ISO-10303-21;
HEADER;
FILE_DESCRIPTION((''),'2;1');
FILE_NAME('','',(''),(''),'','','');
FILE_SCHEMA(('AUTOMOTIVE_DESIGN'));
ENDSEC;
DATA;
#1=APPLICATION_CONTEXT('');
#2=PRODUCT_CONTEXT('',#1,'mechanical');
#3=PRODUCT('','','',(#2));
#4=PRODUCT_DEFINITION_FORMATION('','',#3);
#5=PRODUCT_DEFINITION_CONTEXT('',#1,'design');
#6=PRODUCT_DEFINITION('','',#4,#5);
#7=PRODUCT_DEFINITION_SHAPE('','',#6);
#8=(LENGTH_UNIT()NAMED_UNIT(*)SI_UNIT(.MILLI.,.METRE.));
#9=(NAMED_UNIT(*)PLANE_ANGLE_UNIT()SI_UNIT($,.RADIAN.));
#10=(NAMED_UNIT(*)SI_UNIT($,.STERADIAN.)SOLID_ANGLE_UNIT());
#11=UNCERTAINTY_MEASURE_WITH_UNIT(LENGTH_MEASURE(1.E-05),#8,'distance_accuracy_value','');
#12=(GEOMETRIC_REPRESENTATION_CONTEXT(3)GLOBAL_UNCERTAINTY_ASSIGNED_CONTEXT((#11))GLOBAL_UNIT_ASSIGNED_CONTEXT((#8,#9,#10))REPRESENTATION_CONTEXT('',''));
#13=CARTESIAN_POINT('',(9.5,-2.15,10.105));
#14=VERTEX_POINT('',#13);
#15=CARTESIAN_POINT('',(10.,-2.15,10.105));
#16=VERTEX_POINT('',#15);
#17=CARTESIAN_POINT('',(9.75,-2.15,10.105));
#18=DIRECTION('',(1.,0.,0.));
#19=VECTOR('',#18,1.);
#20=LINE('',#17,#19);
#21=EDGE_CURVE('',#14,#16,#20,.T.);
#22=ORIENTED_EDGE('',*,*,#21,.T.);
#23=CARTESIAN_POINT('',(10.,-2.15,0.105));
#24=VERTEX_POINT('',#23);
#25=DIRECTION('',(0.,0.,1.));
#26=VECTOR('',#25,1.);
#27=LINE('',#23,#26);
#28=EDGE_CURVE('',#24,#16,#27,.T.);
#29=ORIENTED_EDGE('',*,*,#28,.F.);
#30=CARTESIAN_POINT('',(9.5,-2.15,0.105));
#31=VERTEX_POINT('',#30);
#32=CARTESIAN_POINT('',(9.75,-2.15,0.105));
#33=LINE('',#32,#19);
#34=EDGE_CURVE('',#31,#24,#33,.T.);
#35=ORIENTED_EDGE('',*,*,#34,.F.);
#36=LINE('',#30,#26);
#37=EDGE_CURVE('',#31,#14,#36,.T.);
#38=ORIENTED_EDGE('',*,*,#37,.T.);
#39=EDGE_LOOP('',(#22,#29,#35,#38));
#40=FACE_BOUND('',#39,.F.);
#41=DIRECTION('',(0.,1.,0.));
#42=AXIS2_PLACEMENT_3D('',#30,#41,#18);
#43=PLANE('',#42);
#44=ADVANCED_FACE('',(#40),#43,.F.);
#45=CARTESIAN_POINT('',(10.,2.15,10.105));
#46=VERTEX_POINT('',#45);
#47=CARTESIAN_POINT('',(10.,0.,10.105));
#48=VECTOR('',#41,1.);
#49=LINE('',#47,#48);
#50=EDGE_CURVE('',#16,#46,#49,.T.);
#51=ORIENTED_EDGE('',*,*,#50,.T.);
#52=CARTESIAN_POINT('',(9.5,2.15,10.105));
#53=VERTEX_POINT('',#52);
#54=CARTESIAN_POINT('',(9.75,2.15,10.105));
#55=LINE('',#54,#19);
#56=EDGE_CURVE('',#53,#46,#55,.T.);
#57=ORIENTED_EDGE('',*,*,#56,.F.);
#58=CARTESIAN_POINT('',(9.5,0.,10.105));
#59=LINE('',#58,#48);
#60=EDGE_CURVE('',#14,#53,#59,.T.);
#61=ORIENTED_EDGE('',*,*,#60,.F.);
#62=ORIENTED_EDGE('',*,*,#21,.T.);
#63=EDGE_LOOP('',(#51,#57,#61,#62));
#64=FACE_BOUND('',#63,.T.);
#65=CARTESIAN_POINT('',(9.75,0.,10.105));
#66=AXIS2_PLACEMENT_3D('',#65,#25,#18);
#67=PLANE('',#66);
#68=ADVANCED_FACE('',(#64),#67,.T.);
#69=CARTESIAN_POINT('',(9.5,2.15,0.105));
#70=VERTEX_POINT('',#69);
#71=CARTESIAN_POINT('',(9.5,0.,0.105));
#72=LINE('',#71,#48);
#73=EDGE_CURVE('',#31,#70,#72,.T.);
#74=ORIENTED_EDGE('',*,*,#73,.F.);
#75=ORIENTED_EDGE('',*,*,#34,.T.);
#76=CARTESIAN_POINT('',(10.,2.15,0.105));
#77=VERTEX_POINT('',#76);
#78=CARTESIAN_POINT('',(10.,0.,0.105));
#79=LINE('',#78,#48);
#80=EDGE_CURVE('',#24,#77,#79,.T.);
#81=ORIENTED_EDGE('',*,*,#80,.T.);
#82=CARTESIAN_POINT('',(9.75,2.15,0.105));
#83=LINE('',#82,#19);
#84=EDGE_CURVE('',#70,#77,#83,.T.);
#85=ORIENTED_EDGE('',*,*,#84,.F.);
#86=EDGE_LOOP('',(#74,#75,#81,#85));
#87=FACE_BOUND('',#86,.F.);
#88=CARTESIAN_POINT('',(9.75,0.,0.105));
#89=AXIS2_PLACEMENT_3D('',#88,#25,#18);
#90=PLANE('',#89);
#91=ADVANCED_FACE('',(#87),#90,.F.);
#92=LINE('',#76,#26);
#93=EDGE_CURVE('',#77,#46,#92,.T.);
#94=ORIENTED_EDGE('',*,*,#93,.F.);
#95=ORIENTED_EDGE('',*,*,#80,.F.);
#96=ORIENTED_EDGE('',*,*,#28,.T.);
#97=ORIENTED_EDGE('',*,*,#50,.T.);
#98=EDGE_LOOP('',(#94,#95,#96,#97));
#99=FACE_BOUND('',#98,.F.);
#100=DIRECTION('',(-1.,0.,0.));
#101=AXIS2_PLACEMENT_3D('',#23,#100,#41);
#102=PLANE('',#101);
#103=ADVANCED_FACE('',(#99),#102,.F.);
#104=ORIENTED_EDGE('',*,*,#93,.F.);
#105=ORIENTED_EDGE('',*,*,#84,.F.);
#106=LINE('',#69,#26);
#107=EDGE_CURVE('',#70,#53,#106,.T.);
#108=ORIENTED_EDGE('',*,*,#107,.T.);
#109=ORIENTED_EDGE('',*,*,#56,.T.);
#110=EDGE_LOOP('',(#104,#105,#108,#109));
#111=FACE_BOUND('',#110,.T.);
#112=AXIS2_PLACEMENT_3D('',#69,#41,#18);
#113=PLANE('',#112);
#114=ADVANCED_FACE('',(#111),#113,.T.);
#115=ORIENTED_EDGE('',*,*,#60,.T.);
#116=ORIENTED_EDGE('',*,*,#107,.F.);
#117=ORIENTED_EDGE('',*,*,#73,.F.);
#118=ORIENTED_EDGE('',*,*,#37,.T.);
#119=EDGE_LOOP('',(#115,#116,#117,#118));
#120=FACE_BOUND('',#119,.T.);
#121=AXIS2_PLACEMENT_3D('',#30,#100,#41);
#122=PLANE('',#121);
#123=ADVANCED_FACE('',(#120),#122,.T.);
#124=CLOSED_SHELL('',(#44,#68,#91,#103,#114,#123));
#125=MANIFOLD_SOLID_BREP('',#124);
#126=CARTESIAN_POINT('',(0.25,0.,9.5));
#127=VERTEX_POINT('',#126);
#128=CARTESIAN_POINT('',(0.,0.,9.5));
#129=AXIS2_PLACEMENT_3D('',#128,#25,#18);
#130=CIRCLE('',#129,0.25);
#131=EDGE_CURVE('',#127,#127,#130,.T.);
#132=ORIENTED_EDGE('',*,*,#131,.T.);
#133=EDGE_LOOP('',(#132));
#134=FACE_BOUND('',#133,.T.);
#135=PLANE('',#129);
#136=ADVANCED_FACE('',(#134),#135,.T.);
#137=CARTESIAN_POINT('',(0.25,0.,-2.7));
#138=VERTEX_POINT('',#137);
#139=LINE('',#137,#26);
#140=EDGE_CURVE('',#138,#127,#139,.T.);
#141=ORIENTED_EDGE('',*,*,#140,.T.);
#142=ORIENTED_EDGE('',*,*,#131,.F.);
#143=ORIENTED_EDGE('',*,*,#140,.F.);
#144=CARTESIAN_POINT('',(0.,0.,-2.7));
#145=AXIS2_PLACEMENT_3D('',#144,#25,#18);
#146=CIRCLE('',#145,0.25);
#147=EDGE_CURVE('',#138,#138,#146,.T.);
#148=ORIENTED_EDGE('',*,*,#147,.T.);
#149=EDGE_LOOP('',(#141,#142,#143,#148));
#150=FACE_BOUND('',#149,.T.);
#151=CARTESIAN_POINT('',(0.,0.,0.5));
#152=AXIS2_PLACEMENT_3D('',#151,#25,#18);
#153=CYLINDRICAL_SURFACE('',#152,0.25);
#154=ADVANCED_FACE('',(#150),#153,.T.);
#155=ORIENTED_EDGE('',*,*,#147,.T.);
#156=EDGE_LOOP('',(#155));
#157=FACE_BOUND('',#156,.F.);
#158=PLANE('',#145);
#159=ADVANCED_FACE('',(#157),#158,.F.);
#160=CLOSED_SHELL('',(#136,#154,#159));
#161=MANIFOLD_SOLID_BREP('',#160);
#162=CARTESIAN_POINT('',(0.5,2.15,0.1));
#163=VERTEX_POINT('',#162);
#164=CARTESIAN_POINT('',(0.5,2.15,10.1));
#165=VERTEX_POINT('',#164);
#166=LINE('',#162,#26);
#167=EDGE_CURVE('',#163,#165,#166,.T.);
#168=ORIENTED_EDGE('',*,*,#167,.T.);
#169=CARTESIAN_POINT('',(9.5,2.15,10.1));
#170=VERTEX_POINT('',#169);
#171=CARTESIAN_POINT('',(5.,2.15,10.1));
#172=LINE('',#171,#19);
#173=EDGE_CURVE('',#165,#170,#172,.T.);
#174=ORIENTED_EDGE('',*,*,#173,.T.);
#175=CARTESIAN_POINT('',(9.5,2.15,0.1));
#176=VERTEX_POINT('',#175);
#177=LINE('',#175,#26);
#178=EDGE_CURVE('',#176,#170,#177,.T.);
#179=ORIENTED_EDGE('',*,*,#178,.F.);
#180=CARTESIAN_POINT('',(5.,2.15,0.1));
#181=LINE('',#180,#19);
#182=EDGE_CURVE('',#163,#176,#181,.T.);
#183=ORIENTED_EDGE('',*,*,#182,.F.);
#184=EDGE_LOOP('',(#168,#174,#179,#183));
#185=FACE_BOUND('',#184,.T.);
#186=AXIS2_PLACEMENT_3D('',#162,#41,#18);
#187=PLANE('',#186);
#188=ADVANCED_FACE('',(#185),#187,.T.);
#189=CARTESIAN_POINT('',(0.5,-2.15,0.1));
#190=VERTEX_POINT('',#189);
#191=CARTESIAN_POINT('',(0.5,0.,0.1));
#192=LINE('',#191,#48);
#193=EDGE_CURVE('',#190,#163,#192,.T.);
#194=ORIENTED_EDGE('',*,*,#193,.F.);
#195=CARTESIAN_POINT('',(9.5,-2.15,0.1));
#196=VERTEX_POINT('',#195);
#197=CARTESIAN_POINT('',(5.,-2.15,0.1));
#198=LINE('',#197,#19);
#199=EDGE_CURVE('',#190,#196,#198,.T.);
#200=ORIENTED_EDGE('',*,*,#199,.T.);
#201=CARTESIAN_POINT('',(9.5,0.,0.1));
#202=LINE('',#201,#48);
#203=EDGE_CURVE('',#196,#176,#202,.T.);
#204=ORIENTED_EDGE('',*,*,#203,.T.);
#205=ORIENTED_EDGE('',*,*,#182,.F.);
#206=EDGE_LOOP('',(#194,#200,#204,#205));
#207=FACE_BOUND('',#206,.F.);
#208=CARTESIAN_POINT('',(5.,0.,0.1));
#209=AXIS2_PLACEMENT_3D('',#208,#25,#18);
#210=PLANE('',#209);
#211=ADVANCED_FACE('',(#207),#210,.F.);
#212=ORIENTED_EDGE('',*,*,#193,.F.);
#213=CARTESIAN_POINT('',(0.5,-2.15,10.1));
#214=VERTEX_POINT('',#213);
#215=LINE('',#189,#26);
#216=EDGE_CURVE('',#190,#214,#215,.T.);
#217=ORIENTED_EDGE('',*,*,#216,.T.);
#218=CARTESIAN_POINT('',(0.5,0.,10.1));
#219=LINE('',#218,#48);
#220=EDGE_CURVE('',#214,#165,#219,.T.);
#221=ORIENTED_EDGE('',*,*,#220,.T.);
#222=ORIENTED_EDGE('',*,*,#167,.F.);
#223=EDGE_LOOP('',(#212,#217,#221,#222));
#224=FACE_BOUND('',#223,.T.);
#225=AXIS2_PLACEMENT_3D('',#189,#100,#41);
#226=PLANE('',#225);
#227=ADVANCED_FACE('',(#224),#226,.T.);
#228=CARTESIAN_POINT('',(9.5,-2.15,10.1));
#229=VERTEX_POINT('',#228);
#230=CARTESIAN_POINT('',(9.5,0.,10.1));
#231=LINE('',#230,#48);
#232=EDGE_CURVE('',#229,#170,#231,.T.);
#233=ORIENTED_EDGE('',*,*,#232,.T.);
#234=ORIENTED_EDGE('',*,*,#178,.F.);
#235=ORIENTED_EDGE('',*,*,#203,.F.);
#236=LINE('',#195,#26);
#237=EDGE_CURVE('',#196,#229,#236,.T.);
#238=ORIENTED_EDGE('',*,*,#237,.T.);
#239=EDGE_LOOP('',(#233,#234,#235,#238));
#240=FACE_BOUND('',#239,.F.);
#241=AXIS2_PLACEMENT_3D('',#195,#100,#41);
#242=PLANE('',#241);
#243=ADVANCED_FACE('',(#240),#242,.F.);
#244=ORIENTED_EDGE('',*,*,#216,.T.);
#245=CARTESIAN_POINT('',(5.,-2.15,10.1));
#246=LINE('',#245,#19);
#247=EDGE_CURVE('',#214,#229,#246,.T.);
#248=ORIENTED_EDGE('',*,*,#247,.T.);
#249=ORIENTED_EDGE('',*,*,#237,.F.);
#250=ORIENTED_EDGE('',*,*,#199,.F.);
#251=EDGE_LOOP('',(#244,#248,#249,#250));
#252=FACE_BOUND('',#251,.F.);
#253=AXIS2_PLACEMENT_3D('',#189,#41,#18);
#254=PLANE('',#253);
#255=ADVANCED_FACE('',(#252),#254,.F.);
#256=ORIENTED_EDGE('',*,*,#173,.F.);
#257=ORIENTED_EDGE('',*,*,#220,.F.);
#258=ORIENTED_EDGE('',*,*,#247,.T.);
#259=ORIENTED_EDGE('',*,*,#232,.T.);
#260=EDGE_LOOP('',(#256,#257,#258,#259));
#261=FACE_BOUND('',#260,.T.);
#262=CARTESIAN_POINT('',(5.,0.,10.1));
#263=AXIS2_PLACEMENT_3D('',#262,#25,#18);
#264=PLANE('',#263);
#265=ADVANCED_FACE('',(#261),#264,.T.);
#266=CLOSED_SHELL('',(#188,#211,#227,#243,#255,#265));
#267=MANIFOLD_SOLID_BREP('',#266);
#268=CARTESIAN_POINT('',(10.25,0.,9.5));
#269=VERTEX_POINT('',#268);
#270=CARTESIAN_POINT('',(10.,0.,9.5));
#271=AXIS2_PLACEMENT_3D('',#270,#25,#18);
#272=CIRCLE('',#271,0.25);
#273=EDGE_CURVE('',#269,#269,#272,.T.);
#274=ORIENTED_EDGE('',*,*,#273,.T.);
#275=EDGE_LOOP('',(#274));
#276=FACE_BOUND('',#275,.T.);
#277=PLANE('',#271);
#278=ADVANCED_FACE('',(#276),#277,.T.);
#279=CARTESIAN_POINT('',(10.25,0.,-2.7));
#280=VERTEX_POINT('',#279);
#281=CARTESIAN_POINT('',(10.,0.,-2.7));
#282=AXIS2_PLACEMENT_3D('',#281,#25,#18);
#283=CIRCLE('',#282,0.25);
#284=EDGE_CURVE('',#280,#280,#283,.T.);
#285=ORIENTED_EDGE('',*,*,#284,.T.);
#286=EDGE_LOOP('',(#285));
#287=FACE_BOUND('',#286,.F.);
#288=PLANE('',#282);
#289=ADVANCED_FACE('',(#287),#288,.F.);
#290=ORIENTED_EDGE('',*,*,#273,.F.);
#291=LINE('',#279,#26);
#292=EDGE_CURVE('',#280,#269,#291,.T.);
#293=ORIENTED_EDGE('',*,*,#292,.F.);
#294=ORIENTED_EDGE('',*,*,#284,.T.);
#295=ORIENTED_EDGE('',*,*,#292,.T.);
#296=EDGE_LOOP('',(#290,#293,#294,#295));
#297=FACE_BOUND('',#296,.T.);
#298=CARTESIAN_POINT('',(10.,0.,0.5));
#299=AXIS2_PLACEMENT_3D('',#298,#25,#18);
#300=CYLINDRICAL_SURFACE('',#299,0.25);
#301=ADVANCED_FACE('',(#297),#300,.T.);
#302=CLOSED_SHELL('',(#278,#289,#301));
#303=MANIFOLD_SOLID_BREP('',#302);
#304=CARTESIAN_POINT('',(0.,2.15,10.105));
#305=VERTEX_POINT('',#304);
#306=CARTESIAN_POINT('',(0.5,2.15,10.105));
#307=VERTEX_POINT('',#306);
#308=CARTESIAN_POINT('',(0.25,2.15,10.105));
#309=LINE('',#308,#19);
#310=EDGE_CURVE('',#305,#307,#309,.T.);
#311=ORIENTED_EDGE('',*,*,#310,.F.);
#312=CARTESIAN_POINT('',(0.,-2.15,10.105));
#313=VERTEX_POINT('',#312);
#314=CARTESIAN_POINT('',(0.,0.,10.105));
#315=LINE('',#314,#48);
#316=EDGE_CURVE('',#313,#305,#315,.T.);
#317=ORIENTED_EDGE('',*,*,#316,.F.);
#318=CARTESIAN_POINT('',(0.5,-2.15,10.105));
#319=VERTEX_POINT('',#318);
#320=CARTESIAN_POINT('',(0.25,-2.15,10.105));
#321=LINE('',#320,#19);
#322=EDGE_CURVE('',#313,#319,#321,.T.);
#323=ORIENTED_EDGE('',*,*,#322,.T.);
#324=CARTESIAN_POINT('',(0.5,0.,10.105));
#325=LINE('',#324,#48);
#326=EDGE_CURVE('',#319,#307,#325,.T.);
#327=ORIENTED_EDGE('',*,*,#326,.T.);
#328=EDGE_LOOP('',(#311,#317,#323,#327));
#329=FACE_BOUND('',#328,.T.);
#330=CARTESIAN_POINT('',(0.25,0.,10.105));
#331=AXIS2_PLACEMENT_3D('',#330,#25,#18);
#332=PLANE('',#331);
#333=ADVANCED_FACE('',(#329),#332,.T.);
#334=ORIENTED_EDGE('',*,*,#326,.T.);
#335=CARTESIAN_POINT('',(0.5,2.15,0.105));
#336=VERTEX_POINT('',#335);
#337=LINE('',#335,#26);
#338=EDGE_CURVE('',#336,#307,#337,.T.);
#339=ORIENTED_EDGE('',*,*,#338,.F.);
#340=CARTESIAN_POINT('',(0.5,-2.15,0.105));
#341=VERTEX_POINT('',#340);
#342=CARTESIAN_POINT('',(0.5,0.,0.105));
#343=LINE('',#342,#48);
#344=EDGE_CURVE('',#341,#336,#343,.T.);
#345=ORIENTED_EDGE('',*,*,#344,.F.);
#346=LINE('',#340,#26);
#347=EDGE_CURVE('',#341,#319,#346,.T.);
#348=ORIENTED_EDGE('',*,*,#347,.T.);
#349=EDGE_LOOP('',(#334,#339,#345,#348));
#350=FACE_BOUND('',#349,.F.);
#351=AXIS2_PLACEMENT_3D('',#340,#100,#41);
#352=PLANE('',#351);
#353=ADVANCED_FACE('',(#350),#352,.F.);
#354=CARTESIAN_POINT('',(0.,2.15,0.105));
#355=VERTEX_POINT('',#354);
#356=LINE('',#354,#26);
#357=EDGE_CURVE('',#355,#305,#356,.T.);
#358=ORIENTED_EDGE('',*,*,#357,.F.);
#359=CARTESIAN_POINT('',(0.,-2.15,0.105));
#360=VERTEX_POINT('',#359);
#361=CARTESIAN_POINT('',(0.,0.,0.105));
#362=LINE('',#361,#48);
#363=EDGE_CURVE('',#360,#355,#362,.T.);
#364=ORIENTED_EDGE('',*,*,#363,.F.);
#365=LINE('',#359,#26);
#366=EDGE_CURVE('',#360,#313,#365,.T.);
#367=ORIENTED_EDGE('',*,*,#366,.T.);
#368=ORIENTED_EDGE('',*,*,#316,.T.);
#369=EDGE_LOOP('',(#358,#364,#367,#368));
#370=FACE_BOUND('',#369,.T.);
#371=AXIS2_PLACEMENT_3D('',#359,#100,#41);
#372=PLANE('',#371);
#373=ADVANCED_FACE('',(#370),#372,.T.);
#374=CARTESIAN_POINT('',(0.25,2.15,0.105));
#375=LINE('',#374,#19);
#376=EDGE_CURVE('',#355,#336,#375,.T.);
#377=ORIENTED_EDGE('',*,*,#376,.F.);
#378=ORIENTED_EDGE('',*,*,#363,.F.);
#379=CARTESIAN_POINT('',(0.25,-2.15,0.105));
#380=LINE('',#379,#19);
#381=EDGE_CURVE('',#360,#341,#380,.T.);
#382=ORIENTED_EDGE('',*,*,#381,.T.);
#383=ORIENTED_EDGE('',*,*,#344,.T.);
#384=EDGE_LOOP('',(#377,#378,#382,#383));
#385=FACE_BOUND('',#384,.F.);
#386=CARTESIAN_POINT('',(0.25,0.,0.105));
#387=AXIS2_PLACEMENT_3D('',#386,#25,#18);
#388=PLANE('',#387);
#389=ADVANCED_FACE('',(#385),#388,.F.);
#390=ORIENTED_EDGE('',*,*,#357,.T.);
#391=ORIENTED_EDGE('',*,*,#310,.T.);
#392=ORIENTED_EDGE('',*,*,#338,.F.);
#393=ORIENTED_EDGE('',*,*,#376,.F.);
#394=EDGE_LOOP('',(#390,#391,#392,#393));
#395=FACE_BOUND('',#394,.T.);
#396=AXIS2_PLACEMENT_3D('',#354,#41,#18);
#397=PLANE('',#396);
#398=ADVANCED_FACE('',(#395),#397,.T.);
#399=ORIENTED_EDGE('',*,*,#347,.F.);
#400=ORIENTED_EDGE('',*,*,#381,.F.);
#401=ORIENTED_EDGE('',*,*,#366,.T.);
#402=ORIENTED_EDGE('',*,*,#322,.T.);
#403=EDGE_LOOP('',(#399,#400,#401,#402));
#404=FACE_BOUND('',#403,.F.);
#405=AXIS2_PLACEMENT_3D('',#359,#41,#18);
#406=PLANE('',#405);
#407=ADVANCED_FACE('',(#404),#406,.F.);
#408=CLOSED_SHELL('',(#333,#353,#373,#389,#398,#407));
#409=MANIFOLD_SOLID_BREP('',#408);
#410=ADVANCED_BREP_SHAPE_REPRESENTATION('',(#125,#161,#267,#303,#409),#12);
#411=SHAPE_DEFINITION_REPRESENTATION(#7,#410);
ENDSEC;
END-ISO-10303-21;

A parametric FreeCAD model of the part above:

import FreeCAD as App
import Part
import Sketcher
from FreeCAD import Vector


def add_polygon(sketch, points):
    """Adds a closed chain of lines whose ends are joined by coincident constraints."""
    first, n = sketch.GeometryCount, len(points)
    for a, b in zip(points, points[1:] + points[:1]):
        sketch.addGeometry(Part.LineSegment(App.Vector(*a, 0), App.Vector(*b, 0)), False)
    for i in range(n):
        sketch.addConstraint(Sketcher.Constraint("Coincident", first + i, 2, first + (i + 1) % n, 1))

doc = App.newDocument("Part")
body = doc.addObject("PartDesign::Body", "Body")

sketch1 = body.newObject("Sketcher::SketchObject", "Sketch")
sketch1.AttachmentSupport = (doc.getObject("XY_Plane"), [""])
sketch1.MapMode = "FlatFace"
sketch1.AttachmentOffset = App.Placement(Vector(0, 0, 0.1), App.Rotation())
add_polygon(sketch1, [(0.5, 2.1), (0.5, -2.1), (9.5, -2.1), (9.5, 2.1)])
sketch1.addConstraint([
    Sketcher.Constraint("Vertical", 0),
    Sketcher.Constraint("Horizontal", 1),
    Sketcher.Constraint("Vertical", 2),
    Sketcher.Constraint("Horizontal", 3),
    Sketcher.Constraint("DistanceX", 1, 1, 1, 2, 9.0),
    Sketcher.Constraint("DistanceY", 0, 2, 0, 1, 4.3),
    Sketcher.Constraint("DistanceX", -1, 1, 0, 2, 0.5),
    Sketcher.Constraint("DistanceY", 0, 2, -1, 1, 2.15),
])
pad1 = body.newObject("PartDesign::Pad", "Pad")
pad1.Profile = sketch1
pad1.Length = 10
body2 = doc.addObject("PartDesign::Body", "Body001")
body2.AllowCompound = True

sketch2 = body2.newObject("Sketcher::SketchObject", "Sketch001")
sketch2.AttachmentSupport = (doc.getObject("XY_Plane001"), [""])
sketch2.MapMode = "FlatFace"
sketch2.AttachmentOffset = App.Placement(Vector(0, 0, 0.5), App.Rotation())
sketch2.addGeometry([
    Part.Circle(Vector(0, 0, 0), Vector(0, 0, 1), 0.25),
    Part.Circle(Vector(10, 0, 0), Vector(0, 0, 1), 0.25),
], False)
sketch2.addConstraint([
    Sketcher.Constraint("Coincident", 0, 3, -1, 1),
    Sketcher.Constraint("Equal", 0, 1),
    Sketcher.Constraint("PointOnObject", 1, 3, -1),
    Sketcher.Constraint("Diameter", 0, 0.5),
    Sketcher.Constraint("DistanceX", -1, 1, 1, 3, 10.0),
])
pad2 = body2.newObject("PartDesign::Pad", "Pad001")
pad2.Profile = sketch2
pad2.Type = "TwoLengths"
pad2.Length = 9
pad2.Length2 = 3.2
body3 = doc.addObject("PartDesign::Body", "Body002")
body3.AllowCompound = True

sketch3 = body3.newObject("Sketcher::SketchObject", "Sketch002")
sketch3.AttachmentSupport = (doc.getObject("XY_Plane002"), [""])
sketch3.MapMode = "FlatFace"
sketch3.AttachmentOffset = App.Placement(Vector(0, 0, 0.105), App.Rotation())
add_polygon(sketch3, [(0, 2.1), (0, -2.1), (0.5, -2.1), (0.5, 2.1)])
add_polygon(sketch3, [(9.5, 2.1), (9.5, -2.1), (10, -2.1), (10, 2.1)])
sketch3.addConstraint([
    Sketcher.Constraint("Vertical", 0),
    Sketcher.Constraint("Horizontal", 1),
    Sketcher.Constraint("Vertical", 2),
    Sketcher.Constraint("Horizontal", 3),
    Sketcher.Constraint("Vertical", 4),
    Sketcher.Constraint("Horizontal", 5),
    Sketcher.Constraint("Vertical", 6),
    Sketcher.Constraint("Horizontal", 7),
    Sketcher.Constraint("Symmetric", 0, 2, 3, 2, -1, 1),
    Sketcher.Constraint("Horizontal", 1, 2, 4, 2),
    Sketcher.Constraint("Horizontal", 3, 2, 6, 2),
    Sketcher.Constraint("Equal", 3, 5),
    Sketcher.Constraint("DistanceX", 1, 1, 1, 2, 0.5),
    Sketcher.Constraint("DistanceY", 0, 2, 0, 1, 4.3),
    Sketcher.Constraint("DistanceX", -1, 1, 5, 2, 10.0),
])
pad3 = body3.newObject("PartDesign::Pad", "Pad002")
pad3.Profile = sketch3
pad3.Length = 10

doc.recompute()
